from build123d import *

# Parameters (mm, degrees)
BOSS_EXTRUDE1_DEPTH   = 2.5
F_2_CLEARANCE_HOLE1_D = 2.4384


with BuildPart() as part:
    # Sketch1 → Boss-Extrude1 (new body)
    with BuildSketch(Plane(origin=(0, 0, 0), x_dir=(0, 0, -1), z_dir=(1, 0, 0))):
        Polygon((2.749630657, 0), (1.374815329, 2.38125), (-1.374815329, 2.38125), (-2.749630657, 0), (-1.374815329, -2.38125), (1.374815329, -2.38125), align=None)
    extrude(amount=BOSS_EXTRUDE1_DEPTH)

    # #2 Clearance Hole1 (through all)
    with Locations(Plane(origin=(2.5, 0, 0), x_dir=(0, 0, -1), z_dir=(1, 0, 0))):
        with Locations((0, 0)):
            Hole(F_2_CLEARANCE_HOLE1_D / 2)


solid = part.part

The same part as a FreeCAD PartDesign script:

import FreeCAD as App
import Part
import Sketcher
Q = App.Units.Quantity


def add_polygon(sketch, points):
    """Adds a closed chain of lines whose ends are joined by coincident constraints."""
    first, n = sketch.GeometryCount, len(points)
    for a, b in zip(points, points[1:] + points[:1]):
        sketch.addGeometry(Part.LineSegment(App.Vector(*a, 0), App.Vector(*b, 0)), False)
    for i in range(n):
        sketch.addConstraint(Sketcher.Constraint("Coincident", first + i, 2, first + (i + 1) % n, 1))

doc = App.newDocument("Part")
body = doc.addObject("PartDesign::Body", "Body")

# Sketch on YZ plane
sketch1 = body.newObject("Sketcher::SketchObject", "Sketch")
sketch1.AttachmentSupport = (doc.getObject("YZ_Plane"), [""])
sketch1.MapMode = "FlatFace"
add_polygon(sketch1, [(0, -2.749631), (2.38125, -1.374815), (2.38125, 1.374815), (0, 2.749631), (-2.38125, 1.374815), (-2.38125, -1.374815)])  # lines 0-5
sketch1.addConstraint([
    Sketcher.Constraint("Vertical", 1),
    Sketcher.Constraint("Vertical", 4),
    Sketcher.Constraint("Symmetric", 0, 2, 3, 2, -1, 1),
    Sketcher.Constraint("Symmetric", 2, 2, 5, 2, -1, 1),
    Sketcher.Constraint("PointOnObject", 2, 2, -2),
    Sketcher.Constraint("Parallel", 2, 5),
    Sketcher.Constraint("Horizontal", 1, 2, 3, 2),
    Sketcher.Constraint("Angle", 0, Q("30 deg")),
    Sketcher.Constraint("DistanceY", 1, 1, 1, 2, 2.749631),
    Sketcher.Constraint("DistanceX", 3, 2, 1, 2, 4.7625),
])
pad1 = body.newObject("PartDesign::Pad", "Pad")
pad1.Profile = sketch1
pad1.Length = 2.5

# Sketch on YZ plane
sketch2 = body.newObject("Sketcher::SketchObject", "Sketch001")
sketch2.AttachmentSupport = (doc.getObject("YZ_Plane"), [""])
sketch2.MapMode = "FlatFace"
sketch2.AttachmentOffset = App.Placement(App.Vector(0, 0, 2.5), App.Rotation())
sketch2.addGeometry(Part.Circle(App.Vector(0, 0, 0), App.Vector(0, 0, 1), 1.2192), False)
sketch2.addConstraint([
    Sketcher.Constraint("Coincident", 0, 3, -1, 1),
    Sketcher.Constraint("Diameter", 0, 2.4384),
])
doc.recompute()
hole = body.newObject("PartDesign::Hole", "Hole")
hole.Profile = sketch2
hole.ThreadType = "None"
hole.Diameter = 2.4384
hole.DepthType = "ThroughAll"

doc.recompute()
